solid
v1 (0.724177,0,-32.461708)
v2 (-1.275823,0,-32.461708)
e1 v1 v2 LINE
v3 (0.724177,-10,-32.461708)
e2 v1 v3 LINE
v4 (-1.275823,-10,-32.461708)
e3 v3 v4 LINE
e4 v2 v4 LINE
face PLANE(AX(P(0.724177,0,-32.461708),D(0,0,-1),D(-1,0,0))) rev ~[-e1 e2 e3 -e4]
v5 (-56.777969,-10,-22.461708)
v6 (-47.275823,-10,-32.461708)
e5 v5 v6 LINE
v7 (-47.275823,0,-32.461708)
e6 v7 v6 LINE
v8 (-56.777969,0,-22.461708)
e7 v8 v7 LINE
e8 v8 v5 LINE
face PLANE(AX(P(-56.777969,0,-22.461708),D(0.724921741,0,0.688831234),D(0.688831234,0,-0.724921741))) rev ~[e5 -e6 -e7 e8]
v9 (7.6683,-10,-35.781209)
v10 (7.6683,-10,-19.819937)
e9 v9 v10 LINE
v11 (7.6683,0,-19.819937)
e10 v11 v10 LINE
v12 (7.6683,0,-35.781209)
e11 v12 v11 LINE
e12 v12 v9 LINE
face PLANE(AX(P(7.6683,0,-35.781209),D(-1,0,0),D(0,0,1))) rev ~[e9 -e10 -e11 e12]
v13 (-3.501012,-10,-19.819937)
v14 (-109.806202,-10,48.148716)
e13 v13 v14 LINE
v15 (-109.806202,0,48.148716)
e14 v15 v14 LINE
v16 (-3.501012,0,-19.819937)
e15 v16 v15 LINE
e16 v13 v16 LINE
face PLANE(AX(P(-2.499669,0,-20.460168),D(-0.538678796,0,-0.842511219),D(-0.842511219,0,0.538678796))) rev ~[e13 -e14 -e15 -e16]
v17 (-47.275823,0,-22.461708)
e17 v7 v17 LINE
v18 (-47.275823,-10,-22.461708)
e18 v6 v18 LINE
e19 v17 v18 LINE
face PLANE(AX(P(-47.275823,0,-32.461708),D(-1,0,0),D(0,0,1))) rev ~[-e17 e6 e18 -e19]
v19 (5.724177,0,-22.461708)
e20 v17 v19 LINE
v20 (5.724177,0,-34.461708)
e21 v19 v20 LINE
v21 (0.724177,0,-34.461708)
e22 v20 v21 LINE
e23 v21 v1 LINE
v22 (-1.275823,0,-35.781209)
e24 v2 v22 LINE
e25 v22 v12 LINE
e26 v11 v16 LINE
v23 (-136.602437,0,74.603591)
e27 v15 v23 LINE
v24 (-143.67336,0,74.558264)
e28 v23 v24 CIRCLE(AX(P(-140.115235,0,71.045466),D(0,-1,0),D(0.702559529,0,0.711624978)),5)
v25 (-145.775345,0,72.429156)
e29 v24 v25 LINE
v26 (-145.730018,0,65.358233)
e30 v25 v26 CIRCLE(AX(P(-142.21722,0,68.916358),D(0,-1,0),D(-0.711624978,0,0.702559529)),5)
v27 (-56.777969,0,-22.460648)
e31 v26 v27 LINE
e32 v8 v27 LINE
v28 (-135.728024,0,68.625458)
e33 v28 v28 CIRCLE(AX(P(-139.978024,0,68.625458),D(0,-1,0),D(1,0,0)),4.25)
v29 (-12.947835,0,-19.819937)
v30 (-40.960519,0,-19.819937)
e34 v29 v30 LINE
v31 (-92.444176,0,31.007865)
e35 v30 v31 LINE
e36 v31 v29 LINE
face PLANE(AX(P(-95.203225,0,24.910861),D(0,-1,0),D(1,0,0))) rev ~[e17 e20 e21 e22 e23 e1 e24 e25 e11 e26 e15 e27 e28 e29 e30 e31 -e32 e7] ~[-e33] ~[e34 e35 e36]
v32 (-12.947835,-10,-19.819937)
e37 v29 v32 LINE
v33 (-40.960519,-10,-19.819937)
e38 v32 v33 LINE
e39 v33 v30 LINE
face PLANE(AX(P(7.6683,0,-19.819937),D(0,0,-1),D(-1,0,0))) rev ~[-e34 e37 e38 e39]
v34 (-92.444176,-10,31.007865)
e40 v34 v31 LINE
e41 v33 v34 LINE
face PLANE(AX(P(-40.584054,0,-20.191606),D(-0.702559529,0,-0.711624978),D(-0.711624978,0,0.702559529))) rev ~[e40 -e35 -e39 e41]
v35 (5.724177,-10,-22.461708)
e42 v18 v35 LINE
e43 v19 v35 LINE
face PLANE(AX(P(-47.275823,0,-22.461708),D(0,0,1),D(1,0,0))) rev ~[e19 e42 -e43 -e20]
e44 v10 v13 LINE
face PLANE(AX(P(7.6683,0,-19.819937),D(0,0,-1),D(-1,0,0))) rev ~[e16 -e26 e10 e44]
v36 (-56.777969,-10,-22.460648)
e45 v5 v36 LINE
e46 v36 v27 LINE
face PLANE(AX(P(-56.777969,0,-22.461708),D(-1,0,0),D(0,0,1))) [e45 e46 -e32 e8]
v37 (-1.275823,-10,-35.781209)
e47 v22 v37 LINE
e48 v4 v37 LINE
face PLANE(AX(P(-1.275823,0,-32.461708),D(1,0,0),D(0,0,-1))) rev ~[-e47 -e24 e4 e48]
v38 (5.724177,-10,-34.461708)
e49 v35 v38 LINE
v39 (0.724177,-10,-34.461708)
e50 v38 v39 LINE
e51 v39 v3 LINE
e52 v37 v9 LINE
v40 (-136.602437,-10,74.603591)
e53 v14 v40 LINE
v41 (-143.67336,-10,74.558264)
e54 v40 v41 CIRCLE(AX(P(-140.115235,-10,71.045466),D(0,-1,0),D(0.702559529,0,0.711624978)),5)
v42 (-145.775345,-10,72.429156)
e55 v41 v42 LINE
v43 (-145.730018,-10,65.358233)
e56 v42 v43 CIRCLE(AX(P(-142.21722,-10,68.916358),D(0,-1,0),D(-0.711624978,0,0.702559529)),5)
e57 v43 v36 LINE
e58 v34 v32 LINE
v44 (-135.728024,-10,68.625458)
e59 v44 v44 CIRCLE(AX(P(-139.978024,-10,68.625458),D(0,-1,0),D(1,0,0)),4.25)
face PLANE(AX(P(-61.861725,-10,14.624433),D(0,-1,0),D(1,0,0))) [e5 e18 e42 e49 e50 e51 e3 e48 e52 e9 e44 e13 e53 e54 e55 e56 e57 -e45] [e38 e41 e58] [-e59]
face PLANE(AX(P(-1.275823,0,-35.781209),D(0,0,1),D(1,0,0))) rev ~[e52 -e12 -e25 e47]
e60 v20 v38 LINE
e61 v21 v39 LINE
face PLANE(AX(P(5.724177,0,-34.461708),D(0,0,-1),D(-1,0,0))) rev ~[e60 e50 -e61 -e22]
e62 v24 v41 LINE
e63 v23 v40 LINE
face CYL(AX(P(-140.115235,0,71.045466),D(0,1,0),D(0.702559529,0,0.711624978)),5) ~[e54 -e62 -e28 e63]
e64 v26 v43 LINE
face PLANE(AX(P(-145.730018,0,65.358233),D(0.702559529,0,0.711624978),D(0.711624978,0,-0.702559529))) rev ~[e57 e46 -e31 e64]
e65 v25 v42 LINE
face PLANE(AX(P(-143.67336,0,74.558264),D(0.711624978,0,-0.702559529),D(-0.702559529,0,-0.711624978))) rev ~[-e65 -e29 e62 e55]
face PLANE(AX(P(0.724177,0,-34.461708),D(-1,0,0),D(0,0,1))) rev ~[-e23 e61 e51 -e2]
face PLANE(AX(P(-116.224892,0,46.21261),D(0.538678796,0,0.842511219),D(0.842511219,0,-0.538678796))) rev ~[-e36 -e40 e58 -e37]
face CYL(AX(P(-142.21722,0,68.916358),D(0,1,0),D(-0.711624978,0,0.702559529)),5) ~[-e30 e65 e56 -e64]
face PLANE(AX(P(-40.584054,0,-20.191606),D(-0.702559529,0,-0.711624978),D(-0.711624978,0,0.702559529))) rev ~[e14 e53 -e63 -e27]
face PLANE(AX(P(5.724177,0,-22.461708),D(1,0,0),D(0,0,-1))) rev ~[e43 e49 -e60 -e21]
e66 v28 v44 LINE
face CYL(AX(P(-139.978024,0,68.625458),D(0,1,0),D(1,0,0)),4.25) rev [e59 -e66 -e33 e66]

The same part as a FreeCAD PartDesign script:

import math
import FreeCAD as App
import Part
import Sketcher

V = App.Vector

doc = App.newDocument("Part")
body = doc.addObject("PartDesign::Body", "Body")

# Sketch on XZ plane
sketch1 = doc.addObject("Sketcher::SketchObject", "Sketch")
body.addObject(sketch1)
sketch1.AttachmentSupport = (doc.XZ_Plane, [""])
sketch1.MapMode = "FlatFace"
sketch1.addGeometry([
    Part.LineSegment(V(-1.3, -32.5, 0), V(-1.3, -35.8, 0)),  # 0
    Part.LineSegment(V(-1.3, -35.8, 0), V(7.7, -35.8, 0)),  # 1
    Part.LineSegment(V(7.7, -35.8, 0), V(7.7, -19.8, 0)),  # 2
    Part.LineSegment(V(7.7, -19.8, 0), V(-56.8, -19.8, 0)),  # 3
    Part.LineSegment(V(-56.8, -19.8, 0), V(-56.8, -22.5, 0)),  # 4
    Part.LineSegment(V(-56.8, -22.5, 0), V(-47.3, -32.5, 0)),  # 5
    Part.LineSegment(V(-47.3, -32.5, 0), V(-47.3, -22.5, 0)),  # 6
    Part.LineSegment(V(-47.3, -22.5, 0), V(5.7, -22.5, 0)),  # 7
    Part.LineSegment(V(5.7, -22.5, 0), V(5.7, -34.5, 0)),  # 8
    Part.LineSegment(V(5.7, -34.5, 0), V(0.7, -34.5, 0)),  # 9
    Part.LineSegment(V(0.7, -34.5, 0), V(0.7, -32.5, 0)),  # 10
    Part.LineSegment(V(0.7, -32.5, 0), V(-1.3, -32.5, 0)),  # 11
], False)
sketch1.addConstraint([
    Sketcher.Constraint("Coincident", 0, 2, 1, 1),
    Sketcher.Constraint("Coincident", 1, 2, 2, 1),
    Sketcher.Constraint("Coincident", 2, 2, 3, 1),
    Sketcher.Constraint("Coincident", 3, 2, 4, 1),
    Sketcher.Constraint("Coincident", 4, 2, 5, 1),
    Sketcher.Constraint("Coincident", 5, 2, 6, 1),
    Sketcher.Constraint("Coincident", 6, 2, 7, 1),
    Sketcher.Constraint("Coincident", 7, 2, 8, 1),
    Sketcher.Constraint("Coincident", 8, 2, 9, 1),
    Sketcher.Constraint("Coincident", 9, 2, 10, 1),
    Sketcher.Constraint("Coincident", 10, 2, 11, 1),
    Sketcher.Constraint("Coincident", 11, 2, 0, 1),
    Sketcher.Constraint("Vertical", 0),
    Sketcher.Constraint("Horizontal", 1),
    Sketcher.Constraint("Vertical", 2),
    Sketcher.Constraint("Horizontal", 3),
    Sketcher.Constraint("Vertical", 4),
    Sketcher.Constraint("Vertical", 6),
    Sketcher.Constraint("Horizontal", 7),
    Sketcher.Constraint("Vertical", 8),
    Sketcher.Constraint("Horizontal", 9),
    Sketcher.Constraint("Vertical", 10),
    Sketcher.Constraint("Horizontal", 11),
    Sketcher.Constraint("Horizontal", 4, 2, 6, 2),
    Sketcher.Constraint("Horizontal", 5, 2, 10, 2),
    Sketcher.Constraint("Equal", 11, 10),
    Sketcher.Constraint("DistanceX", 7, 1, 7, 2, 53.0),
    Sketcher.Constraint("DistanceX", 9, 2, 9, 1, 5.0),
    Sketcher.Constraint("DistanceX", 11, 2, 11, 1, 2.0),
    Sketcher.Constraint("DistanceY", 6, 1, 6, 2, 10.0),
    Sketcher.Constraint("DistanceY", 0, 2, 0, 1, 3.319501),
    Sketcher.Constraint("DistanceX", 3, 2, 3, 1, 64.446269),
    Sketcher.Constraint("DistanceY", 4, 2, 4, 1, 2.641771),
    Sketcher.Constraint("DistanceX", -1, 1, 1, 2, 7.6683),
    Sketcher.Constraint("DistanceX", 1, 1, 1, 2, 8.944123),
    Sketcher.Constraint("DistanceY", 0, 2, -1, 1, 35.781209),
])
pad1 = doc.addObject("PartDesign::Pad", "Pad")
body.addObject(pad1)
pad1.Profile = sketch1
pad1.Length = 10
body2 = doc.addObject("PartDesign::Body", "Body001")

# Sketch on XZ plane
sketch2 = doc.addObject("Sketcher::SketchObject", "Sketch001")
body2.addObject(sketch2)
sketch2.AttachmentSupport = (doc.getObject("XZ_Plane001"), [""])
sketch2.MapMode = "FlatFace"
sketch2.addGeometry([
    Part.LineSegment(V(-145.7, 65.4, 0), V(-56.8, -22.5, 0)),  # 0
    Part.LineSegment(V(-56.8, -22.5, 0), V(-40.6, -20.2, 0)),  # 1
    Part.LineSegment(V(-40.6, -20.2, 0), V(-136.6, 74.6, 0)),  # 2
    Part.ArcOfCircle(Part.Circle(V(-140.1, 71, 0), V(0, 0, 1), 5), math.radians(45), math.radians(135)),  # 3
    Part.LineSegment(V(-143.7, 74.6, 0), V(-145.8, 72.4, 0)),  # 4
    Part.ArcOfCircle(Part.Circle(V(-142.2, 68.9, 0), V(0, 0, 1), 5), math.radians(135), math.radians(225)),  # 5
    Part.Circle(V(-140, 68.6, 0), V(0, 0, 1), 4.2),  # 6
], False)
sketch2.addConstraint([
    Sketcher.Constraint("Coincident", 0, 2, 1, 1),
    Sketcher.Constraint("Coincident", 1, 2, 2, 1),
    Sketcher.Constraint("Tangent", 2, 2, 3, 1),
    Sketcher.Constraint("Tangent", 3, 2, 4, 1),
    Sketcher.Constraint("Tangent", 4, 2, 5, 1),
    Sketcher.Constraint("Tangent", 5, 2, 0, 1),
    Sketcher.Constraint("Equal", 3, 5),
    Sketcher.Constraint("Parallel", 0, 2),
    Sketcher.Constraint("Perpendicular", 2, 4),
    Sketcher.Constraint("Radius", 3, 5.0),
    Sketcher.Constraint("Diameter", 6, 8.5),
    Sketcher.Constraint("Distance", 0, 125.0),
    Sketcher.Constraint("DistanceY", 6, 3, 5, 3, 0.2909),
    Sketcher.Constraint("DistanceY", 0, 2, 1, 2, 2.270102),
    Sketcher.Constraint("DistanceY", 0, 2, 2, 2, 97.065299),
    Sketcher.Constraint("Distance", 2, 134.928349),
    Sketcher.Constraint("DistanceX", 5, 3, -1, 1, 142.21722),
    Sketcher.Constraint("DistanceY", -1, 1, 5, 3, 68.916358),
    Sketcher.Constraint("DistanceX", 3, 3, 6, 3, 0.137211),
])
pad2 = doc.addObject("PartDesign::Pad", "Pad001")
body2.addObject(pad2)
pad2.Profile = sketch2
pad2.Length = 10
doc.recompute()

boolean = doc.addObject("PartDesign::Boolean", "Boolean")
body.addObject(boolean)
boolean.Type = "Fuse"
boolean.addObjects([body2])

# Sketch on XZ plane
sketch3 = doc.addObject("Sketcher::SketchObject", "Sketch002")
body.addObject(sketch3)
sketch3.AttachmentSupport = (doc.XZ_Plane, [""])
sketch3.MapMode = "FlatFace"
sketch3.addGeometry([
    Part.LineSegment(V(-2, -20, 0), V(-118, 54, 0)),
    Part.LineSegment(V(-118, 54, 0), V(-116, 46, 0)),
    Part.LineSegment(V(-116, 46, 0), V(-12, -20, 0)),
    Part.LineSegment(V(-12, -20, 0), V(-2, -20, 0)),
], False)
sketch3.addConstraint([
    Sketcher.Constraint("Coincident", 0, 2, 1, 1),
    Sketcher.Constraint("Coincident", 1, 2, 2, 1),
    Sketcher.Constraint("Coincident", 2, 2, 3, 1),
    Sketcher.Constraint("Coincident", 3, 2, 0, 1),
    Sketcher.Constraint("Horizontal", 3),
    Sketcher.Constraint("Parallel", 0, 2),
    Sketcher.Constraint("DistanceX", 1, 2, 2, 2, 104.278401),
    Sketcher.Constraint("Distance", 0, 137.622309),
    Sketcher.Constraint("DistanceX", 3, 1, 3, 2, 9.446823),
    Sketcher.Constraint("DistanceX", 0, 2, -1, 1, 118.448009),
    Sketcher.Constraint("DistanceY", -1, 1, 1, 2, 46.21261),
    Sketcher.Constraint("DistanceX", 2, 2, -1, 1, 11.946492),
])
pad3 = doc.addObject("PartDesign::Pad", "Pad002")
body.addObject(pad3)
pad3.Profile = sketch3
pad3.Length = 10

doc.recompute()
